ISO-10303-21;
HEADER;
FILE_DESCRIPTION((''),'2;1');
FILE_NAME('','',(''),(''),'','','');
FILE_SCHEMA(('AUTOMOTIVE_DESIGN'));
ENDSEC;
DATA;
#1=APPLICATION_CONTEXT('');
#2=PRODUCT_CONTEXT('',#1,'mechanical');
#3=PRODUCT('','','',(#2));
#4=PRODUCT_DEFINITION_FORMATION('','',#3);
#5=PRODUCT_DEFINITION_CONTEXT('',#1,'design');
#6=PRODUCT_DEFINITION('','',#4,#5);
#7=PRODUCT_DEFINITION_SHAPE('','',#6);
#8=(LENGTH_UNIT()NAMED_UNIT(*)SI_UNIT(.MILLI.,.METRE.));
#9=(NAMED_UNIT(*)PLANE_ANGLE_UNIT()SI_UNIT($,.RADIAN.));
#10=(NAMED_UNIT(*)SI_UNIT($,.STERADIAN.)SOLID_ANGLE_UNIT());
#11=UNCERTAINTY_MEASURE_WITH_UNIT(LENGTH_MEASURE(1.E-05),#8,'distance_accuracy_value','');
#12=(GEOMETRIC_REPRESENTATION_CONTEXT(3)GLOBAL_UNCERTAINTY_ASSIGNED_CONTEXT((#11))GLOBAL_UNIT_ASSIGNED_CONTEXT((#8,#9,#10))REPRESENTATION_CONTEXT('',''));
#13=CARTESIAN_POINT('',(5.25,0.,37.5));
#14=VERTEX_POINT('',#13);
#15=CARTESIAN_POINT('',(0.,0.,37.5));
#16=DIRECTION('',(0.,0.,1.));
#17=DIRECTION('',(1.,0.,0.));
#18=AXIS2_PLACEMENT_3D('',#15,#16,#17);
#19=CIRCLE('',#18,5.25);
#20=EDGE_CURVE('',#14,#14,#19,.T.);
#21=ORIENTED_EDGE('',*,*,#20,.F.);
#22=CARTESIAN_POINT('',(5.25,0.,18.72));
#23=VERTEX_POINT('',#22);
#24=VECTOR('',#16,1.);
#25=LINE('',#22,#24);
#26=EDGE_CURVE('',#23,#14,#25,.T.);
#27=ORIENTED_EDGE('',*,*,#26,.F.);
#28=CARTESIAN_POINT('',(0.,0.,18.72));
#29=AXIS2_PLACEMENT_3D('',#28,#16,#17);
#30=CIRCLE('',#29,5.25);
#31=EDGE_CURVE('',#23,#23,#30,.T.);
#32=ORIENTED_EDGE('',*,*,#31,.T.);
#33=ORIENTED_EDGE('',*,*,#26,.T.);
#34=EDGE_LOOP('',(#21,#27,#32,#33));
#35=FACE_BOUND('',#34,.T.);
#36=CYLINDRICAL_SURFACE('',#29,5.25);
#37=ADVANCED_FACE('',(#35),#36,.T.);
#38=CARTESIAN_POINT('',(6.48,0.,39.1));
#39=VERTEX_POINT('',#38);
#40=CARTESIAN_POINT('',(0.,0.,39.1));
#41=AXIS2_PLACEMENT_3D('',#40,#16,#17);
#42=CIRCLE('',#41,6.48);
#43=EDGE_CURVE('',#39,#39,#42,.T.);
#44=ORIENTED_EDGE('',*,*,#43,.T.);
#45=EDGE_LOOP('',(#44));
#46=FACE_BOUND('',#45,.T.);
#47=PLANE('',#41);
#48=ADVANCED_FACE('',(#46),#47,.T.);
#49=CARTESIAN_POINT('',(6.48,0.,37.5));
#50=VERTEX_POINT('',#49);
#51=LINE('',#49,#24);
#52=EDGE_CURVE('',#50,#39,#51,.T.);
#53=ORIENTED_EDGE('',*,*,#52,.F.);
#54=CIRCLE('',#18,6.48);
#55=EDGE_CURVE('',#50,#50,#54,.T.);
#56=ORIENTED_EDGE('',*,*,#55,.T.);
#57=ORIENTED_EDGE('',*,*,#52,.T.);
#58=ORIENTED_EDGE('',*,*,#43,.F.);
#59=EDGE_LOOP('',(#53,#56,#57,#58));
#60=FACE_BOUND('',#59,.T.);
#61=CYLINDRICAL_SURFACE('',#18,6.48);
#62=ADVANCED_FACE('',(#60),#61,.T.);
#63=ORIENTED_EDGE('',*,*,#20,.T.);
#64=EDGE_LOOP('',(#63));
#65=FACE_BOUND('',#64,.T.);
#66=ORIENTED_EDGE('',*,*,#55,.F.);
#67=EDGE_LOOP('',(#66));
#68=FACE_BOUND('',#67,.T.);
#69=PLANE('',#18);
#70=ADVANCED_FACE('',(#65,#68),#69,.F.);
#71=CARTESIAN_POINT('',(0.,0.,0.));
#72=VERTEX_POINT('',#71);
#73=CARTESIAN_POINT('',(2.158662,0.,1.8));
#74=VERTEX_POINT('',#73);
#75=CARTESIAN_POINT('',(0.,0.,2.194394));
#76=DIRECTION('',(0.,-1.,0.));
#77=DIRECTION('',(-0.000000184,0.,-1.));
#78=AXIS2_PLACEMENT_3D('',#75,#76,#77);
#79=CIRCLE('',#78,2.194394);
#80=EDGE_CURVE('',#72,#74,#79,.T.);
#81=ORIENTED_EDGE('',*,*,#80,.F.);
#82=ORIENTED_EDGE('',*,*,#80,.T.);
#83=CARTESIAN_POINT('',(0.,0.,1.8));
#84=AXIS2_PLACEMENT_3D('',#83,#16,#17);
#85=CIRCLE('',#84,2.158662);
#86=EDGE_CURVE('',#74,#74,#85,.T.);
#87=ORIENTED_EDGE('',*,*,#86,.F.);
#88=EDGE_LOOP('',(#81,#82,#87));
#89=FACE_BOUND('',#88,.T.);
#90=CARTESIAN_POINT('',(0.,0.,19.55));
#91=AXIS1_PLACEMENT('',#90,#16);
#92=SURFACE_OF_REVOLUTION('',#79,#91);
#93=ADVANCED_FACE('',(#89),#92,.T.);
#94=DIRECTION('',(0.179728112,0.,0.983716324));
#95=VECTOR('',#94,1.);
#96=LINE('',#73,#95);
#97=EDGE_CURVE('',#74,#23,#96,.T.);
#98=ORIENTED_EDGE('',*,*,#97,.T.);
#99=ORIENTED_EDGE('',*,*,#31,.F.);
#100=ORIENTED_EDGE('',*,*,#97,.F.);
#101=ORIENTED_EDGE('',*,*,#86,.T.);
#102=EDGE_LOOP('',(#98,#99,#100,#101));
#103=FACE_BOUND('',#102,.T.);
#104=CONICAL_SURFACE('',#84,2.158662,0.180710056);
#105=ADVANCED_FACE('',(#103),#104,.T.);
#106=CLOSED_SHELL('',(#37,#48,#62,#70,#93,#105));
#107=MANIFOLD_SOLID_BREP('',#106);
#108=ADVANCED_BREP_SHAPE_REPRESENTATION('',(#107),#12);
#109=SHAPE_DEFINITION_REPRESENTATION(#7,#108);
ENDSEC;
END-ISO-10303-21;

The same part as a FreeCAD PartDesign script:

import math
import FreeCAD as App
import Part
import Sketcher
from FreeCAD import Vector
Q = App.Units.Quantity

doc = App.newDocument("Part")
body = doc.addObject("PartDesign::Body", "Body")

# Sketch on XZ plane
sketch1 = body.newObject("Sketcher::SketchObject", "Sketch")
sketch1.AttachmentSupport = (doc.getObject("XZ_Plane"), [""])
sketch1.MapMode = "FlatFace"
sketch1.addGeometry([
    Part.LineSegment(Vector(0, 39.1, 0), Vector(0, 0, 0)),  # 0
    Part.ArcOfCircle(Part.Circle(Vector(0, 2.194394, 0), Vector(0, 0, 1), 2.194394), math.radians(-90.000011), math.radians(-10.353925)),  # 1
    Part.LineSegment(Vector(2.158662, 1.8, 0), Vector(5.25, 18.72, 0)),  # 2
    Part.LineSegment(Vector(5.25, 18.72, 0), Vector(5.25, 37.5, 0)),  # 3
    Part.LineSegment(Vector(5.25, 37.5, 0), Vector(6.48, 37.5, 0)),  # 4
    Part.LineSegment(Vector(6.48, 37.5, 0), Vector(6.48, 39.1, 0)),  # 5
    Part.LineSegment(Vector(6.48, 39.1, 0), Vector(0, 39.1, 0)),  # 6
], False)
sketch1.addConstraint([
    Sketcher.Constraint("Coincident", 0, 2, 1, 1),
    Sketcher.Constraint("Tangent", 1, 2, 2, 1),
    Sketcher.Constraint("Coincident", 2, 2, 3, 1),
    Sketcher.Constraint("Coincident", 3, 2, 4, 1),
    Sketcher.Constraint("Coincident", 4, 2, 5, 1),
    Sketcher.Constraint("Coincident", 5, 2, 6, 1),
    Sketcher.Constraint("Coincident", 6, 2, 0, 1),
    Sketcher.Constraint("Vertical", 0),
    Sketcher.Constraint("Vertical", 3),
    Sketcher.Constraint("Horizontal", 4),
    Sketcher.Constraint("Vertical", 5),
    Sketcher.Constraint("Horizontal", 6),
    Sketcher.Constraint("Coincident", 0, 2, -1, 1),
    Sketcher.Constraint("PointOnObject", 1, 3, -2),
    Sketcher.Constraint("DistanceY", 0, 2, 0, 1, Q("39.1 mm")),
    Sketcher.Constraint("DistanceY", 5, 1, 5, 2, Q("1.6 mm")),
    Sketcher.Constraint("DistanceX", 4, 1, 4, 2, Q("1.23 mm")),
    Sketcher.Constraint("DistanceX", 6, 2, 6, 1, Q("6.48 mm")),
    Sketcher.Constraint("DistanceY", 3, 1, 3, 2, Q("18.78 mm")),
    Sketcher.Constraint("DistanceY", -1, 1, 1, 2, Q("1.8 mm")),
])
revolution = body.newObject("PartDesign::Revolution", "Revolution")
revolution.Profile = sketch1
revolution.ReferenceAxis = (sketch1, ["V_Axis"])
revolution.Angle = 360

doc.recompute()
